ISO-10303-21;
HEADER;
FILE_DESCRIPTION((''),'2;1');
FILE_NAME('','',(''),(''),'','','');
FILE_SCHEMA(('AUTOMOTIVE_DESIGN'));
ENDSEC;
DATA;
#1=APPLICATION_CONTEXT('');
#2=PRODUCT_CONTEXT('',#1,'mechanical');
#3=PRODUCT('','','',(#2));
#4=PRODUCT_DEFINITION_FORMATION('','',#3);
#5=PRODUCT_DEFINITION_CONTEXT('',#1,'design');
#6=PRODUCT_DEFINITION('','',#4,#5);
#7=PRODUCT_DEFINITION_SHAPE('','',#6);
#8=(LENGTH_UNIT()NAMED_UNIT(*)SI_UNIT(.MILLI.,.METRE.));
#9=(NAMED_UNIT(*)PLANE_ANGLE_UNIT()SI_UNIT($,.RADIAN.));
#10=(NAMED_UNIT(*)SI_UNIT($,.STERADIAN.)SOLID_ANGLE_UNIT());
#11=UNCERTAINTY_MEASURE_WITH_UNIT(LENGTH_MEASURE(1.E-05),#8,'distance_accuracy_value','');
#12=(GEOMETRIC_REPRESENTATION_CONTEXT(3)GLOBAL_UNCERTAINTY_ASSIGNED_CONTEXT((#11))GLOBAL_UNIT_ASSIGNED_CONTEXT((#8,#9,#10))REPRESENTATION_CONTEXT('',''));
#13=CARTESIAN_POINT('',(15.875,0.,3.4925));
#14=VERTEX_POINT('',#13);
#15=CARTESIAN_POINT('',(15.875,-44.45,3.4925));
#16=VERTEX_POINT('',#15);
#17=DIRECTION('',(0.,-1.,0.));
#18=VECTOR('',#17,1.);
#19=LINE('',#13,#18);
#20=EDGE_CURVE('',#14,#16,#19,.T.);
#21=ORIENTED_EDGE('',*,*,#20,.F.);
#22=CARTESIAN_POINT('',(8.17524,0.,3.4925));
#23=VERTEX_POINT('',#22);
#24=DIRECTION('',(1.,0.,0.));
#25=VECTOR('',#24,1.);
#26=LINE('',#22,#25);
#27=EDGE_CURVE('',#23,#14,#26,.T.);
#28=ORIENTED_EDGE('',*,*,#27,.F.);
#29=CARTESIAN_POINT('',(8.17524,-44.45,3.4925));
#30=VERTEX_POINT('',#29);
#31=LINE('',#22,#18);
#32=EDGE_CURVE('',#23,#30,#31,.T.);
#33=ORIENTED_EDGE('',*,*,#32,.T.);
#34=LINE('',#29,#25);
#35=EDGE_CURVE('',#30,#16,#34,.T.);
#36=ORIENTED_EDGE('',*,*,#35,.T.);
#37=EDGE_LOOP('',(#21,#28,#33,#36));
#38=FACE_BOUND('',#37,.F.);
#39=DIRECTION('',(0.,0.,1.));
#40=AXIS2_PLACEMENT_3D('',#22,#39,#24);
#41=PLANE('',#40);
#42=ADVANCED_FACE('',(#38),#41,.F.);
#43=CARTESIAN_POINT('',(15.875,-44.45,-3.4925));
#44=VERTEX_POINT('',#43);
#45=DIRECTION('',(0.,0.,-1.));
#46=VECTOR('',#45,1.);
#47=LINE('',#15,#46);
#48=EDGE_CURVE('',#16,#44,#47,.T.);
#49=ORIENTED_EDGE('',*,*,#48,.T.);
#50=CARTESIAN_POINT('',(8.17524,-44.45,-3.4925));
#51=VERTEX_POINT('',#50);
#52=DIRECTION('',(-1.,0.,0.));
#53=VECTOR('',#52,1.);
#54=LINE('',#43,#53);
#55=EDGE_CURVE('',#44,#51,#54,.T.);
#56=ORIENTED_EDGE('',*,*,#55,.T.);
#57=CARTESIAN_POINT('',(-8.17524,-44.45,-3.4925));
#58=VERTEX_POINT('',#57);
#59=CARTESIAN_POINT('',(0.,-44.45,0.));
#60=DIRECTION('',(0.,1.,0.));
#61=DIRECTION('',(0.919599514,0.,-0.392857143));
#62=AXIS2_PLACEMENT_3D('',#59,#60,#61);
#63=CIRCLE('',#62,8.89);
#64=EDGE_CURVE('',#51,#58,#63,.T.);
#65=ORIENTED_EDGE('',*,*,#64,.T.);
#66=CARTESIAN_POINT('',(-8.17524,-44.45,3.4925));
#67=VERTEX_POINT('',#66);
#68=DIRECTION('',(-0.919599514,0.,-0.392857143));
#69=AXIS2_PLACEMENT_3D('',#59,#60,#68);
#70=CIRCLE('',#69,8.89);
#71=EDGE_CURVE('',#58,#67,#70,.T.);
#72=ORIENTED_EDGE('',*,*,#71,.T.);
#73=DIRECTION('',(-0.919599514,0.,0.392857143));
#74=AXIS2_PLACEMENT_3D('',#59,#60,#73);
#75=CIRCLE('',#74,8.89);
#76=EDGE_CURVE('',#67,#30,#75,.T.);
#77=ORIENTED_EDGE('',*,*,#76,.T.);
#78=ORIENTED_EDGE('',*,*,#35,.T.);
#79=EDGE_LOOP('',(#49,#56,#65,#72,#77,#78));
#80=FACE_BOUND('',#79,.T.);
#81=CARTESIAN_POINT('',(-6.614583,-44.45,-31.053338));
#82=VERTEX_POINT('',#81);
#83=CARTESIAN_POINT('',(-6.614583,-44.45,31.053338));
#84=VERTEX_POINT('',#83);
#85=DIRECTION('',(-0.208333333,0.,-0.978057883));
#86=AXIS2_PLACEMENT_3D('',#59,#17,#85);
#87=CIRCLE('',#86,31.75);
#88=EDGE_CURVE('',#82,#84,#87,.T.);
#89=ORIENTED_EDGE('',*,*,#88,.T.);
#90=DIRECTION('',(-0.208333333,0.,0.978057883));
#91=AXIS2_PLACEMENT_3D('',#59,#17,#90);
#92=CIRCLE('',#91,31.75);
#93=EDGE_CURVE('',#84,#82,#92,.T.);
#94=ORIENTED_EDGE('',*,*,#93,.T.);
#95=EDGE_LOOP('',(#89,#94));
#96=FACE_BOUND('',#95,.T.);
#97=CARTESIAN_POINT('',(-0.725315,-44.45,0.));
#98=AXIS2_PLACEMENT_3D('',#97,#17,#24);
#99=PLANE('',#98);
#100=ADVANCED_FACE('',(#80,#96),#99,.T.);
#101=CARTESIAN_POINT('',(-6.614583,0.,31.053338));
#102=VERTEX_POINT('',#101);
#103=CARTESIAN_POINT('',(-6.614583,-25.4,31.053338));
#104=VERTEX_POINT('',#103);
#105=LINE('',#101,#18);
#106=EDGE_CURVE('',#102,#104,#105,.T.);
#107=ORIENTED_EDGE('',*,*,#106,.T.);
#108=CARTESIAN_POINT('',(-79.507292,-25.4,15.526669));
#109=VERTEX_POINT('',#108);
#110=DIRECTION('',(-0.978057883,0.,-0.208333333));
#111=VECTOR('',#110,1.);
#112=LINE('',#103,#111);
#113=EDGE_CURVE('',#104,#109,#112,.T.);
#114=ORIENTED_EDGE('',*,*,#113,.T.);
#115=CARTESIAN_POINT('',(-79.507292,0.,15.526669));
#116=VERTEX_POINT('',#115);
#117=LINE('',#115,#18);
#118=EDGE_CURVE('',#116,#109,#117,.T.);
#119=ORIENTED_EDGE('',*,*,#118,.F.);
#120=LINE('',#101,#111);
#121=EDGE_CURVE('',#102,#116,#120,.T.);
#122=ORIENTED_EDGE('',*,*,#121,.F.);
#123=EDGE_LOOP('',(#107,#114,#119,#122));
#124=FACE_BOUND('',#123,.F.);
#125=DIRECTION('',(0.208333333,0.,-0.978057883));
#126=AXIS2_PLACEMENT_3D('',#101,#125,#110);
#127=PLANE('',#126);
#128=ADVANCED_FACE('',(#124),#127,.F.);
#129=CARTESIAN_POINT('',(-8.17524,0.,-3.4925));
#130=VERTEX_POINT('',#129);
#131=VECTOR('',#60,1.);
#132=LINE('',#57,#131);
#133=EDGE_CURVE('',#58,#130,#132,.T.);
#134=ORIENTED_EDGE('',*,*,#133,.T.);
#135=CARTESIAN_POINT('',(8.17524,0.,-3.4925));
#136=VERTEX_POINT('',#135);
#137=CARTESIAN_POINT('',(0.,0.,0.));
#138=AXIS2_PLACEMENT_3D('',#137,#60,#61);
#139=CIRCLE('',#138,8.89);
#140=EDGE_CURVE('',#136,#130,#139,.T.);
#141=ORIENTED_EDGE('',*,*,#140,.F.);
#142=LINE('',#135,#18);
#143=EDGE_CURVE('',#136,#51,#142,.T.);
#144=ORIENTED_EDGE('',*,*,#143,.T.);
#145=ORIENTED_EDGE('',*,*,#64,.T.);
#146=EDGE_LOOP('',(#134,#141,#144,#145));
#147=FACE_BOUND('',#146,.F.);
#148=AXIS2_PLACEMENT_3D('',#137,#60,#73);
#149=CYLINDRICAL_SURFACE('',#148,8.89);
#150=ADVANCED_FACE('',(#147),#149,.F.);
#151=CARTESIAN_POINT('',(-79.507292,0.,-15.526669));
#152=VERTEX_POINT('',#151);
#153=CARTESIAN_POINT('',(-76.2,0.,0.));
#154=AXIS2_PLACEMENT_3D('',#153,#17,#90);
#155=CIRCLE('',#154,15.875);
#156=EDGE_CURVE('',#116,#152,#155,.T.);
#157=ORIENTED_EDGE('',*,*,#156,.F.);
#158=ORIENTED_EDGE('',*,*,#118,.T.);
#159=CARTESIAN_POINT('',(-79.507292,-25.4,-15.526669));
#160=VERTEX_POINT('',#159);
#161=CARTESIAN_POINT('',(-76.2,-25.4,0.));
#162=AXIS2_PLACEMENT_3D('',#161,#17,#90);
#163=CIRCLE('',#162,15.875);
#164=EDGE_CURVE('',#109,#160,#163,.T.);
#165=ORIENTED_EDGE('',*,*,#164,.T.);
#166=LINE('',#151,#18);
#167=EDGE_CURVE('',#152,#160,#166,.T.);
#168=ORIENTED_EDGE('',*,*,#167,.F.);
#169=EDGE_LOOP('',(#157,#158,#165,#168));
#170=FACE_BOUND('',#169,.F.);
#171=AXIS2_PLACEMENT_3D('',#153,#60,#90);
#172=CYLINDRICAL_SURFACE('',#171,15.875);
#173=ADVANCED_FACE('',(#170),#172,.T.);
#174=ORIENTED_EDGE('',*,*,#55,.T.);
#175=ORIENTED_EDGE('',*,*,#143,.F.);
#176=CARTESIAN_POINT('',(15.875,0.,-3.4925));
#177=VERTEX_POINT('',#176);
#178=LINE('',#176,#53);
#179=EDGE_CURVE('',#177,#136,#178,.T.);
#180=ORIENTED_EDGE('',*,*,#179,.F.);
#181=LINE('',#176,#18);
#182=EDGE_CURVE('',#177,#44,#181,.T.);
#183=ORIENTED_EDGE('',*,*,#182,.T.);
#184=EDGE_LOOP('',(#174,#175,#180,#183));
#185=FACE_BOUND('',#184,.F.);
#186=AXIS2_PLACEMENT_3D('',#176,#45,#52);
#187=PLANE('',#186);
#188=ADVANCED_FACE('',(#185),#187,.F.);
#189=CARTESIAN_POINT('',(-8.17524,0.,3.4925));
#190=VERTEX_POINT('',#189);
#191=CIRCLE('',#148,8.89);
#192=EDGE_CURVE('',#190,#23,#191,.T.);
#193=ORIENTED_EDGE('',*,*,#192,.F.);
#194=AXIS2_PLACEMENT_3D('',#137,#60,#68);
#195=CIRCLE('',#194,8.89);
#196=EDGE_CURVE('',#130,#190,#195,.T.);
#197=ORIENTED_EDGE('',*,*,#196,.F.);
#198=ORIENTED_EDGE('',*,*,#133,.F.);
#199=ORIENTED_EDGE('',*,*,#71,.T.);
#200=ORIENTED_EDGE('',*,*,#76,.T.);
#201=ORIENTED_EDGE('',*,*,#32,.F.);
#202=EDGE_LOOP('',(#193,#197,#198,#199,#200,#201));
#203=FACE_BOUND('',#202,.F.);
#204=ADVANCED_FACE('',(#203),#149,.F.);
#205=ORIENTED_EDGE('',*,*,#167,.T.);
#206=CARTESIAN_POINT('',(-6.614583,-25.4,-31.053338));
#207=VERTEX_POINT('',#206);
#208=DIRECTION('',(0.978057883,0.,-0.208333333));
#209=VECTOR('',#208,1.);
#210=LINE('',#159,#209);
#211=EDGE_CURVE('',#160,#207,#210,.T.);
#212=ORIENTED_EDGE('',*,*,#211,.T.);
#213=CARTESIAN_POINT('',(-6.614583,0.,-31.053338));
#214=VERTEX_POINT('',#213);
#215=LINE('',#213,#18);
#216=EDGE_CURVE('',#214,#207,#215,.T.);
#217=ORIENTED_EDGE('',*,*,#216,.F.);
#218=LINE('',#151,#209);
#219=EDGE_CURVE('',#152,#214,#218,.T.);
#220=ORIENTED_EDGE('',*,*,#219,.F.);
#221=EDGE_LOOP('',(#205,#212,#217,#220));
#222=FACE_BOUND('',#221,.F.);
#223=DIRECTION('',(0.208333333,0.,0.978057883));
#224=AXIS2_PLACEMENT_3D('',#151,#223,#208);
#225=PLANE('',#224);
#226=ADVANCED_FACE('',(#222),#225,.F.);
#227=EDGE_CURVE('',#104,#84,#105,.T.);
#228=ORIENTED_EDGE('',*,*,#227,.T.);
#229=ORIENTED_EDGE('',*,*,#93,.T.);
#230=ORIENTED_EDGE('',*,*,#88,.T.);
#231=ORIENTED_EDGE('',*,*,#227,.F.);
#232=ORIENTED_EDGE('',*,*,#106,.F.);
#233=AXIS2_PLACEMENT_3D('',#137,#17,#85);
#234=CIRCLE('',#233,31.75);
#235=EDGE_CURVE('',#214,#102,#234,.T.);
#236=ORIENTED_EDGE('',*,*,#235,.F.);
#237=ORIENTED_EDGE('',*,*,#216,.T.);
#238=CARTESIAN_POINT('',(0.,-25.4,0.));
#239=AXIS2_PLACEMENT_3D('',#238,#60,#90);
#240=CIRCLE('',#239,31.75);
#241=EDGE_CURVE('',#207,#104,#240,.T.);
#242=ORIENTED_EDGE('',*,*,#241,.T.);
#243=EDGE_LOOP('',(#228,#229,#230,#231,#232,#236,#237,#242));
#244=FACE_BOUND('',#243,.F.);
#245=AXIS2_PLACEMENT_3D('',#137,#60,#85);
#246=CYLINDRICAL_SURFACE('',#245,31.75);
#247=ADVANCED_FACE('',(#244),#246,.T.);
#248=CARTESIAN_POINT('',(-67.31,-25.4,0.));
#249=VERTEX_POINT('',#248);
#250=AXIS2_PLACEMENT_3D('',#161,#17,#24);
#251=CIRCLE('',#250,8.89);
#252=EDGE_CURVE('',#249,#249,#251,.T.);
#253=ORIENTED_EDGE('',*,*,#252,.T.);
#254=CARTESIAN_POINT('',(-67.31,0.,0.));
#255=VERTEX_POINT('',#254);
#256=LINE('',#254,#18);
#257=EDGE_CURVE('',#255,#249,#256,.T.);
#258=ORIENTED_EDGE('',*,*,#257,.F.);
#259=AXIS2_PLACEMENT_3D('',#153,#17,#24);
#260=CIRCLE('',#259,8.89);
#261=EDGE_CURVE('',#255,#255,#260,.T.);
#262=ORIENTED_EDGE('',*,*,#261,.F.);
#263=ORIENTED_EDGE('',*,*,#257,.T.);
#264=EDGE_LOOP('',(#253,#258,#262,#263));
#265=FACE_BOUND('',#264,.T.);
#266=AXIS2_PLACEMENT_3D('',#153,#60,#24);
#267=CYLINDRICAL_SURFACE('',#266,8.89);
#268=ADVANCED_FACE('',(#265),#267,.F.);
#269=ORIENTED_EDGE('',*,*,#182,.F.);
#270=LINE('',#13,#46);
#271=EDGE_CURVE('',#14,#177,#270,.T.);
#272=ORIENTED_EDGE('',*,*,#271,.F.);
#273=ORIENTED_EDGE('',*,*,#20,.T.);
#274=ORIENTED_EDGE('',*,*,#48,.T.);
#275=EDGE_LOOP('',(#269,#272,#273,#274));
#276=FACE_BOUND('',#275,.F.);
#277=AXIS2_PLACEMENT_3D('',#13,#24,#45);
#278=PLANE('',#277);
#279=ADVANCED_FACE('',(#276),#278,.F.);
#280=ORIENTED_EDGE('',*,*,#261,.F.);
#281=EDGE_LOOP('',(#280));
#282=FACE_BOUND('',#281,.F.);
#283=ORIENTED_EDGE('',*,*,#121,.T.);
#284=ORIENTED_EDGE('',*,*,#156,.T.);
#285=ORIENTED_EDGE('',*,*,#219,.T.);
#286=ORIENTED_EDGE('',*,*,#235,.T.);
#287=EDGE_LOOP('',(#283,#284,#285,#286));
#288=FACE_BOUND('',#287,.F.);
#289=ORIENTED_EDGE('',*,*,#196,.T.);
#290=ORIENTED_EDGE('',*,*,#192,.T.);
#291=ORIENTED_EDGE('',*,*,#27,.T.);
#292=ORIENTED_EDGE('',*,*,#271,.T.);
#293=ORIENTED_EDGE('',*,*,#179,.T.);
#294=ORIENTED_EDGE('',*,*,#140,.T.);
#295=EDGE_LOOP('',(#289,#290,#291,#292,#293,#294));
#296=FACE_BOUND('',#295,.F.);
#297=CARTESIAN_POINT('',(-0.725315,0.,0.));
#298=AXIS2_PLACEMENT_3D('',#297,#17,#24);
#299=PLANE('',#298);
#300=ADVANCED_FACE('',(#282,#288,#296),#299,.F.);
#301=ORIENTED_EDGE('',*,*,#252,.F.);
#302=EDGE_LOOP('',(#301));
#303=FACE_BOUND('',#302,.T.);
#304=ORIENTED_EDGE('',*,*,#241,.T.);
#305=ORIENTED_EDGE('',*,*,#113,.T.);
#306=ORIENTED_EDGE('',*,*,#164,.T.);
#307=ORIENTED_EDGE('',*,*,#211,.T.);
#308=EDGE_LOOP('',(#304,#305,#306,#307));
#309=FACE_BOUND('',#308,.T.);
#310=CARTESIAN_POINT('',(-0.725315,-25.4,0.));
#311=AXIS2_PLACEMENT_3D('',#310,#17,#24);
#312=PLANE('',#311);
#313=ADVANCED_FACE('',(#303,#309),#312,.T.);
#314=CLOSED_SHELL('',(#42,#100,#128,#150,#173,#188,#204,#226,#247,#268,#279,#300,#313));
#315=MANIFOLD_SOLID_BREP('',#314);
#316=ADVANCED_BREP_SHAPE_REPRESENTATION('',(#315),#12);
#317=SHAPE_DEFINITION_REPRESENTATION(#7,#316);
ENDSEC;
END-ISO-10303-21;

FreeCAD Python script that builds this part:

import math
import FreeCAD as App
import Part
import Sketcher
from FreeCAD import Vector
Q = App.Units.Quantity

doc = App.newDocument("Part")
body = doc.addObject("PartDesign::Body", "Body")

# Sketch on XZ plane
sketch1 = body.newObject("Sketcher::SketchObject", "Sketch")
sketch1.AttachmentSupport = (doc.getObject("XZ_Plane"), [""])
sketch1.MapMode = "FlatFace"
sketch1.addGeometry([
    Part.ArcOfCircle(Part.Circle(Vector(0, 0, 0), Vector(0, 0, 1), 32), math.radians(-102), math.radians(102)),  # 0
    Part.LineSegment(Vector(-7, 31, 0), Vector(-80, 16, 0)),  # 1
    Part.ArcOfCircle(Part.Circle(Vector(-76, 0, 0), Vector(0, 0, 1), 16), math.radians(102), math.radians(258)),  # 2
    Part.LineSegment(Vector(-80, -16, 0), Vector(-7, -31, 0)),  # 3
    Part.ArcOfCircle(Part.Circle(Vector(0, 0, 0), Vector(0, 0, 1), 9), math.radians(23), math.radians(157)),  # 4
    Part.LineSegment(Vector(8, 3, 0), Vector(16, 3, 0)),  # 5
    Part.LineSegment(Vector(16, 3, 0), Vector(16, -3, 0)),  # 6
    Part.LineSegment(Vector(16, -3, 0), Vector(8, -3, 0)),  # 7
    Part.ArcOfCircle(Part.Circle(Vector(0, 0, 0), Vector(0, 0, 1), 9), math.radians(-157), math.radians(-23)),  # 8
    Part.ArcOfCircle(Part.Circle(Vector(0, 0, 0), Vector(0, 0, 1), 9), math.radians(157), math.radians(203)),  # 9
    Part.Circle(Vector(-76, 0, 0), Vector(0, 0, 1), 9),  # 10
], False)
sketch1.addConstraint([
    Sketcher.Constraint("Tangent", 0, 2, 1, 1),
    Sketcher.Constraint("Tangent", 1, 2, 2, 1),
    Sketcher.Constraint("Tangent", 2, 2, 3, 1),
    Sketcher.Constraint("Tangent", 3, 2, 0, 1),
    Sketcher.Constraint("Coincident", 4, 1, 5, 1),
    Sketcher.Constraint("Coincident", 5, 2, 6, 1),
    Sketcher.Constraint("Coincident", 6, 2, 7, 1),
    Sketcher.Constraint("Coincident", 7, 2, 8, 2),
    Sketcher.Constraint("Tangent", 8, 1, 9, 2),
    Sketcher.Constraint("Tangent", 9, 1, 4, 2),
    Sketcher.Constraint("Horizontal", 5),
    Sketcher.Constraint("Vertical", 6),
    Sketcher.Constraint("Horizontal", 7),
    Sketcher.Constraint("Coincident", 0, 3, -1, 1),
    Sketcher.Constraint("Coincident", 4, 3, -1, 1),
    Sketcher.Constraint("Coincident", 8, 3, -1, 1),
    Sketcher.Constraint("Coincident", 10, 3, 2, 3),
    Sketcher.Constraint("Equal", 9, 10),
    Sketcher.Constraint("PointOnObject", 2, 3, -1),
    Sketcher.Constraint("Horizontal", 7, 2, 8, 1),
    Sketcher.Constraint("Horizontal", 5, 2, 9, 1),
    Sketcher.Constraint("Vertical", 4, 1, 7, 2),
    Sketcher.Constraint("Diameter", 10, Q("0.7 in")),
    Sketcher.Constraint("Radius", 0, Q("1.25 in")),
    Sketcher.Constraint("DistanceX", 2, 3, -1, 1, Q("3 in")),
    Sketcher.Constraint("Radius", 2, Q("0.625 in")),
    Sketcher.Constraint("DistanceY", 6, 2, 6, 1, Q("0.275 in")),
    Sketcher.Constraint("DistanceX", -1, 1, 5, 2, Q("0.625 in")),
])
pad1 = body.newObject("PartDesign::Pad", "Pad")
pad1.Profile = sketch1
pad1.Length = Q("1 in")

# Sketch on XZ plane
sketch2 = body.newObject("Sketcher::SketchObject", "Sketch001")
sketch2.AttachmentSupport = (doc.getObject("XZ_Plane"), [""])
sketch2.MapMode = "FlatFace"
sketch2.addGeometry([
    Part.ArcOfCircle(Part.Circle(Vector(0, 0, 0), Vector(0, 0, 1), 32), math.radians(-102), math.radians(102)),  # 0
    Part.ArcOfCircle(Part.Circle(Vector(0, 0, 0), Vector(0, 0, 1), 32), math.radians(102), math.radians(258)),  # 1
    Part.ArcOfCircle(Part.Circle(Vector(0, 0, 0), Vector(0, 0, 1), 9), math.radians(-157), math.radians(-23)),  # 2
    Part.ArcOfCircle(Part.Circle(Vector(0, 0, 0), Vector(0, 0, 1), 9), math.radians(157), math.radians(203)),  # 3
    Part.ArcOfCircle(Part.Circle(Vector(0, 0, 0), Vector(0, 0, 1), 9), math.radians(23), math.radians(157)),  # 4
    Part.LineSegment(Vector(8, 3, 0), Vector(16, 3, 0)),  # 5
    Part.LineSegment(Vector(16, 3, 0), Vector(16, -3, 0)),  # 6
    Part.LineSegment(Vector(16, -3, 0), Vector(8, -3, 0)),  # 7
], False)
sketch2.addConstraint([
    Sketcher.Constraint("Tangent", 0, 1, 1, 2),
    Sketcher.Constraint("Coincident", 1, 1, 0, 2),
    Sketcher.Constraint("Tangent", 2, 1, 3, 2),
    Sketcher.Constraint("Tangent", 3, 1, 4, 2),
    Sketcher.Constraint("Coincident", 4, 1, 5, 1),
    Sketcher.Constraint("Coincident", 5, 2, 6, 1),
    Sketcher.Constraint("Coincident", 6, 2, 7, 1),
    Sketcher.Constraint("Coincident", 7, 2, 2, 2),
    Sketcher.Constraint("Horizontal", 5),
    Sketcher.Constraint("Vertical", 6),
    Sketcher.Constraint("Horizontal", 7),
    Sketcher.Constraint("Coincident", 0, 3, -1, 1),
    Sketcher.Constraint("Coincident", 2, 3, -1, 1),
    Sketcher.Constraint("Coincident", 4, 3, -1, 1),
    Sketcher.Constraint("Horizontal", 3, 1, 4, 1),
    Sketcher.Constraint("Horizontal", 2, 1, 6, 2),
    Sketcher.Constraint("Vertical", 0, 1, 1, 1),
    Sketcher.Constraint("Vertical", 2, 1, 3, 1),
    Sketcher.Constraint("Radius", 0, Q("1.25 in")),
    Sketcher.Constraint("Radius", 2, Q("0.35 in")),
    Sketcher.Constraint("DistanceY", 6, 2, 6, 1, Q("0.275 in")),
    Sketcher.Constraint("DistanceX", -1, 1, 5, 2, Q("0.625 in")),
    Sketcher.Constraint("DistanceX", 0, 1, -1, 1, Q("6.614583 mm")),
])
pad2 = body.newObject("PartDesign::Pad", "Pad001")
pad2.Profile = sketch2
pad2.Length = Q("1.75 in")

doc.recompute()
